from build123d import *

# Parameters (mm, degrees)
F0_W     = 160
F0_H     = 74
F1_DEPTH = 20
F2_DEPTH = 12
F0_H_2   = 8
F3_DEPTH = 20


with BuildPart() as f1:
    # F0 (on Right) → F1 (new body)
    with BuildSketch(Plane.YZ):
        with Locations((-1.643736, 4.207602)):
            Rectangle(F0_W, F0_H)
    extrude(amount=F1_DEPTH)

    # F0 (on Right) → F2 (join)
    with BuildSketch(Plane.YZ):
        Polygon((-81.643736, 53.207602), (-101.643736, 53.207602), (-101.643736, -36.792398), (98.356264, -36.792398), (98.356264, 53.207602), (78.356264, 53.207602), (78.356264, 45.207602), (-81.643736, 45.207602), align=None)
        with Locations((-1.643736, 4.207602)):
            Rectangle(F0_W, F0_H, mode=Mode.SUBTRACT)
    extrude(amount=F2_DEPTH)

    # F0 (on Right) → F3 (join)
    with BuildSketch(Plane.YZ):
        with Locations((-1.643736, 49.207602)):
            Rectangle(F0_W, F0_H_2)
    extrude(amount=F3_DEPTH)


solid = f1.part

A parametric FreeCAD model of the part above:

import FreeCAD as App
import Part
import Sketcher
from FreeCAD import Vector

doc = App.newDocument("Part")
body = doc.addObject("PartDesign::Body", "Body")

# Sketch on YZ plane
sketch1 = doc.addObject("Sketcher::SketchObject", "Sketch")
body.addObject(sketch1)
sketch1.AttachmentSupport = (doc.YZ_Plane, [""])
sketch1.MapMode = "FlatFace"
sketch1.addGeometry([
    Part.LineSegment(Vector(-82, 41, 0), Vector(-82, -33, 0)),
    Part.LineSegment(Vector(-82, -33, 0), Vector(78, -33, 0)),
    Part.LineSegment(Vector(78, -33, 0), Vector(78, 41, 0)),
    Part.LineSegment(Vector(78, 41, 0), Vector(-82, 41, 0)),
], False)
sketch1.addConstraint([
    Sketcher.Constraint("Coincident", 0, 2, 1, 1),
    Sketcher.Constraint("Coincident", 1, 2, 2, 1),
    Sketcher.Constraint("Coincident", 2, 2, 3, 1),
    Sketcher.Constraint("Coincident", 3, 2, 0, 1),
    Sketcher.Constraint("Vertical", 0),
    Sketcher.Constraint("Horizontal", 1),
    Sketcher.Constraint("Vertical", 2),
    Sketcher.Constraint("Horizontal", 3),
    Sketcher.Constraint("DistanceX", 1, 1, 1, 2, 160.0),
    Sketcher.Constraint("DistanceY", 0, 2, 0, 1, 74.0),
    Sketcher.Constraint("DistanceX", 0, 2, -1, 1, 81.643736),
    Sketcher.Constraint("DistanceY", 0, 2, -1, 1, 32.792398),
])
pad1 = doc.addObject("PartDesign::Pad", "Pad")
body.addObject(pad1)
pad1.Profile = sketch1
pad1.Length = 20

# Sketch on YZ plane
sketch2 = doc.addObject("Sketcher::SketchObject", "Sketch001")
body.addObject(sketch2)
sketch2.AttachmentSupport = (doc.YZ_Plane, [""])
sketch2.MapMode = "FlatFace"
sketch2.addGeometry([
    Part.LineSegment(Vector(-82, 53, 0), Vector(-102, 53, 0)),  # 0
    Part.LineSegment(Vector(-102, 53, 0), Vector(-102, -37, 0)),  # 1
    Part.LineSegment(Vector(-102, -37, 0), Vector(98, -37, 0)),  # 2
    Part.LineSegment(Vector(98, -37, 0), Vector(98, 53, 0)),  # 3
    Part.LineSegment(Vector(98, 53, 0), Vector(78, 53, 0)),  # 4
    Part.LineSegment(Vector(78, 53, 0), Vector(78, 45, 0)),  # 5
    Part.LineSegment(Vector(78, 45, 0), Vector(-82, 45, 0)),  # 6
    Part.LineSegment(Vector(-82, 45, 0), Vector(-82, 53, 0)),  # 7
    Part.LineSegment(Vector(78, -33, 0), Vector(-82, -33, 0)),  # 8
    Part.LineSegment(Vector(-82, -33, 0), Vector(-82, 41, 0)),  # 9
    Part.LineSegment(Vector(-82, 41, 0), Vector(78, 41, 0)),  # 10
    Part.LineSegment(Vector(78, 41, 0), Vector(78, -33, 0)),  # 11
], False)
sketch2.addConstraint([
    Sketcher.Constraint("Coincident", 0, 2, 1, 1),
    Sketcher.Constraint("Coincident", 1, 2, 2, 1),
    Sketcher.Constraint("Coincident", 2, 2, 3, 1),
    Sketcher.Constraint("Coincident", 3, 2, 4, 1),
    Sketcher.Constraint("Coincident", 4, 2, 5, 1),
    Sketcher.Constraint("Coincident", 5, 2, 6, 1),
    Sketcher.Constraint("Coincident", 6, 2, 7, 1),
    Sketcher.Constraint("Coincident", 7, 2, 0, 1),
    Sketcher.Constraint("Coincident", 8, 2, 9, 1),
    Sketcher.Constraint("Coincident", 9, 2, 10, 1),
    Sketcher.Constraint("Coincident", 10, 2, 11, 1),
    Sketcher.Constraint("Coincident", 11, 2, 8, 1),
    Sketcher.Constraint("Horizontal", 0),
    Sketcher.Constraint("Vertical", 1),
    Sketcher.Constraint("Horizontal", 2),
    Sketcher.Constraint("Vertical", 3),
    Sketcher.Constraint("Horizontal", 4),
    Sketcher.Constraint("Vertical", 5),
    Sketcher.Constraint("Horizontal", 6),
    Sketcher.Constraint("Vertical", 7),
    Sketcher.Constraint("Horizontal", 8),
    Sketcher.Constraint("Vertical", 9),
    Sketcher.Constraint("Horizontal", 10),
    Sketcher.Constraint("Vertical", 11),
    Sketcher.Constraint("Horizontal", 0, 2, 3, 2),
    Sketcher.Constraint("Vertical", 7, 2, 8, 2),
    Sketcher.Constraint("Vertical", 5, 2, 10, 2),
    Sketcher.Constraint("Equal", 0, 4),
    Sketcher.Constraint("DistanceX", 0, 2, 0, 1, 20.0),
    Sketcher.Constraint("DistanceX", 2, 1, 2, 2, 200.0),
    Sketcher.Constraint("DistanceY", 1, 2, 1, 1, 90.0),
    Sketcher.Constraint("DistanceY", 5, 2, 5, 1, 8.0),
    Sketcher.Constraint("DistanceY", 9, 1, 9, 2, 74.0),
    Sketcher.Constraint("DistanceY", 1, 2, 8, 2, 4.0),
    Sketcher.Constraint("DistanceX", 0, 2, -1, 1, 101.643736),
    Sketcher.Constraint("DistanceY", -1, 1, 0, 2, 53.207602),
])
pad2 = doc.addObject("PartDesign::Pad", "Pad001")
body.addObject(pad2)
pad2.Profile = sketch2
pad2.Length = 12

# Sketch on YZ plane
sketch3 = doc.addObject("Sketcher::SketchObject", "Sketch002")
body.addObject(sketch3)
sketch3.AttachmentSupport = (doc.YZ_Plane, [""])
sketch3.MapMode = "FlatFace"
sketch3.addGeometry([
    Part.LineSegment(Vector(-82, 53, 0), Vector(-82, 45, 0)),
    Part.LineSegment(Vector(-82, 45, 0), Vector(78, 45, 0)),
    Part.LineSegment(Vector(78, 45, 0), Vector(78, 53, 0)),
    Part.LineSegment(Vector(78, 53, 0), Vector(-82, 53, 0)),
], False)
sketch3.addConstraint([
    Sketcher.Constraint("Coincident", 0, 2, 1, 1),
    Sketcher.Constraint("Coincident", 1, 2, 2, 1),
    Sketcher.Constraint("Coincident", 2, 2, 3, 1),
    Sketcher.Constraint("Coincident", 3, 2, 0, 1),
    Sketcher.Constraint("Vertical", 0),
    Sketcher.Constraint("Horizontal", 1),
    Sketcher.Constraint("Vertical", 2),
    Sketcher.Constraint("Horizontal", 3),
    Sketcher.Constraint("DistanceX", 1, 1, 1, 2, 160.0),
    Sketcher.Constraint("DistanceY", 0, 2, 0, 1, 8.0),
    Sketcher.Constraint("DistanceX", 0, 2, -1, 1, 81.643736),
    Sketcher.Constraint("DistanceY", -1, 1, 0, 2, 45.207602),
])
pad3 = doc.addObject("PartDesign::Pad", "Pad002")
body.addObject(pad3)
pad3.Profile = sketch3
pad3.Length = 20

doc.recompute()
